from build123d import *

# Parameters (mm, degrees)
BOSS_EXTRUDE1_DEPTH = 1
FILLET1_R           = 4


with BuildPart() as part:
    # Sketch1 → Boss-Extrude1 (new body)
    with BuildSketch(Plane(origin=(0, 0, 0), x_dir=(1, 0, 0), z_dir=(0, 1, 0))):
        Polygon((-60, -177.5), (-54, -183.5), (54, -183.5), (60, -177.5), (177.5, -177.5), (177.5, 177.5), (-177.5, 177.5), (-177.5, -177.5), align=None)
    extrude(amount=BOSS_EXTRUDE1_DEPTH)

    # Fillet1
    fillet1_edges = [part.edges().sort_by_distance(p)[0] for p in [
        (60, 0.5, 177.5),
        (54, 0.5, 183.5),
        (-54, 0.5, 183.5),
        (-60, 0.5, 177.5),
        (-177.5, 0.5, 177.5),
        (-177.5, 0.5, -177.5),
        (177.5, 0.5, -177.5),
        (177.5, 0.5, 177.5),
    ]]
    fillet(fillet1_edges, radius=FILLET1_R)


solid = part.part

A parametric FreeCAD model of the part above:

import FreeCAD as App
import Part
import Sketcher


def edges_at(feature, points):
    """Names of the edges that pass closest to the given points."""
    edges = feature.Shape.Edges
    near = lambda p: min(range(len(edges)), key=lambda i: edges[i].distToShape(Part.Vertex(*p))[0])
    return sorted({f"Edge{near(p) + 1}" for p in points})


def add_polygon(sketch, points):
    """Adds a closed chain of lines whose ends are joined by coincident constraints."""
    first, n = sketch.GeometryCount, len(points)
    for a, b in zip(points, points[1:] + points[:1]):
        sketch.addGeometry(Part.LineSegment(App.Vector(*a, 0), App.Vector(*b, 0)), False)
    for i in range(n):
        sketch.addConstraint(Sketcher.Constraint("Coincident", first + i, 2, first + (i + 1) % n, 1))

doc = App.newDocument("Part")
body = doc.addObject("PartDesign::Body", "Body")

# Sketch on XZ plane
sketch1 = doc.addObject("Sketcher::SketchObject", "Sketch")
body.addObject(sketch1)
sketch1.AttachmentSupport = (doc.XZ_Plane, [""])
sketch1.MapMode = "FlatFace"
add_polygon(sketch1, [(-60, 178), (-54, 184), (54, 184), (60, 178), (178, 178), (178, -178), (-178, -178), (-178, 178)])  # lines 0-7
sketch1.addConstraint([
    Sketcher.Constraint("Horizontal", 1),
    Sketcher.Constraint("Horizontal", 3),
    Sketcher.Constraint("Vertical", 4),
    Sketcher.Constraint("Horizontal", 5),
    Sketcher.Constraint("Vertical", 6),
    Sketcher.Constraint("Horizontal", 7),
    Sketcher.Constraint("Symmetric", 3, 2, 5, 2, -1, 1),
    Sketcher.Constraint("Symmetric", 2, 2, 7, 2, -2),
    Sketcher.Constraint("Perpendicular", 0, 2),
    Sketcher.Constraint("Equal", 5, 4),
    Sketcher.Constraint("Equal", 0, 2),
    Sketcher.Constraint("DistanceX", 1, 1, 1, 2, 108.0),
    Sketcher.Constraint("DistanceX", 5, 2, 5, 1, 355.0),
    Sketcher.Constraint("DistanceX", 3, 1, 3, 2, 117.5),
])
pad1 = doc.addObject("PartDesign::Pad", "Pad")
body.addObject(pad1)
pad1.Profile = sketch1
pad1.Length = 1
pad1.Reversed = True
doc.recompute()

fillet = doc.addObject("PartDesign::Fillet", "Fillet")
body.addObject(fillet)
fillet.Base = (pad1, edges_at(pad1, [
    (60, 0.5, 177.5),
    (54, 0.5, 183.5),
    (-54, 0.5, 183.5),
    (-60, 0.5, 177.5),
    (-177.5, 0.5, 177.5),
    (-177.5, 0.5, -177.5),
    (177.5, 0.5, -177.5),
    (177.5, 0.5, 177.5),
]))
fillet.Radius = 4

doc.recompute()
